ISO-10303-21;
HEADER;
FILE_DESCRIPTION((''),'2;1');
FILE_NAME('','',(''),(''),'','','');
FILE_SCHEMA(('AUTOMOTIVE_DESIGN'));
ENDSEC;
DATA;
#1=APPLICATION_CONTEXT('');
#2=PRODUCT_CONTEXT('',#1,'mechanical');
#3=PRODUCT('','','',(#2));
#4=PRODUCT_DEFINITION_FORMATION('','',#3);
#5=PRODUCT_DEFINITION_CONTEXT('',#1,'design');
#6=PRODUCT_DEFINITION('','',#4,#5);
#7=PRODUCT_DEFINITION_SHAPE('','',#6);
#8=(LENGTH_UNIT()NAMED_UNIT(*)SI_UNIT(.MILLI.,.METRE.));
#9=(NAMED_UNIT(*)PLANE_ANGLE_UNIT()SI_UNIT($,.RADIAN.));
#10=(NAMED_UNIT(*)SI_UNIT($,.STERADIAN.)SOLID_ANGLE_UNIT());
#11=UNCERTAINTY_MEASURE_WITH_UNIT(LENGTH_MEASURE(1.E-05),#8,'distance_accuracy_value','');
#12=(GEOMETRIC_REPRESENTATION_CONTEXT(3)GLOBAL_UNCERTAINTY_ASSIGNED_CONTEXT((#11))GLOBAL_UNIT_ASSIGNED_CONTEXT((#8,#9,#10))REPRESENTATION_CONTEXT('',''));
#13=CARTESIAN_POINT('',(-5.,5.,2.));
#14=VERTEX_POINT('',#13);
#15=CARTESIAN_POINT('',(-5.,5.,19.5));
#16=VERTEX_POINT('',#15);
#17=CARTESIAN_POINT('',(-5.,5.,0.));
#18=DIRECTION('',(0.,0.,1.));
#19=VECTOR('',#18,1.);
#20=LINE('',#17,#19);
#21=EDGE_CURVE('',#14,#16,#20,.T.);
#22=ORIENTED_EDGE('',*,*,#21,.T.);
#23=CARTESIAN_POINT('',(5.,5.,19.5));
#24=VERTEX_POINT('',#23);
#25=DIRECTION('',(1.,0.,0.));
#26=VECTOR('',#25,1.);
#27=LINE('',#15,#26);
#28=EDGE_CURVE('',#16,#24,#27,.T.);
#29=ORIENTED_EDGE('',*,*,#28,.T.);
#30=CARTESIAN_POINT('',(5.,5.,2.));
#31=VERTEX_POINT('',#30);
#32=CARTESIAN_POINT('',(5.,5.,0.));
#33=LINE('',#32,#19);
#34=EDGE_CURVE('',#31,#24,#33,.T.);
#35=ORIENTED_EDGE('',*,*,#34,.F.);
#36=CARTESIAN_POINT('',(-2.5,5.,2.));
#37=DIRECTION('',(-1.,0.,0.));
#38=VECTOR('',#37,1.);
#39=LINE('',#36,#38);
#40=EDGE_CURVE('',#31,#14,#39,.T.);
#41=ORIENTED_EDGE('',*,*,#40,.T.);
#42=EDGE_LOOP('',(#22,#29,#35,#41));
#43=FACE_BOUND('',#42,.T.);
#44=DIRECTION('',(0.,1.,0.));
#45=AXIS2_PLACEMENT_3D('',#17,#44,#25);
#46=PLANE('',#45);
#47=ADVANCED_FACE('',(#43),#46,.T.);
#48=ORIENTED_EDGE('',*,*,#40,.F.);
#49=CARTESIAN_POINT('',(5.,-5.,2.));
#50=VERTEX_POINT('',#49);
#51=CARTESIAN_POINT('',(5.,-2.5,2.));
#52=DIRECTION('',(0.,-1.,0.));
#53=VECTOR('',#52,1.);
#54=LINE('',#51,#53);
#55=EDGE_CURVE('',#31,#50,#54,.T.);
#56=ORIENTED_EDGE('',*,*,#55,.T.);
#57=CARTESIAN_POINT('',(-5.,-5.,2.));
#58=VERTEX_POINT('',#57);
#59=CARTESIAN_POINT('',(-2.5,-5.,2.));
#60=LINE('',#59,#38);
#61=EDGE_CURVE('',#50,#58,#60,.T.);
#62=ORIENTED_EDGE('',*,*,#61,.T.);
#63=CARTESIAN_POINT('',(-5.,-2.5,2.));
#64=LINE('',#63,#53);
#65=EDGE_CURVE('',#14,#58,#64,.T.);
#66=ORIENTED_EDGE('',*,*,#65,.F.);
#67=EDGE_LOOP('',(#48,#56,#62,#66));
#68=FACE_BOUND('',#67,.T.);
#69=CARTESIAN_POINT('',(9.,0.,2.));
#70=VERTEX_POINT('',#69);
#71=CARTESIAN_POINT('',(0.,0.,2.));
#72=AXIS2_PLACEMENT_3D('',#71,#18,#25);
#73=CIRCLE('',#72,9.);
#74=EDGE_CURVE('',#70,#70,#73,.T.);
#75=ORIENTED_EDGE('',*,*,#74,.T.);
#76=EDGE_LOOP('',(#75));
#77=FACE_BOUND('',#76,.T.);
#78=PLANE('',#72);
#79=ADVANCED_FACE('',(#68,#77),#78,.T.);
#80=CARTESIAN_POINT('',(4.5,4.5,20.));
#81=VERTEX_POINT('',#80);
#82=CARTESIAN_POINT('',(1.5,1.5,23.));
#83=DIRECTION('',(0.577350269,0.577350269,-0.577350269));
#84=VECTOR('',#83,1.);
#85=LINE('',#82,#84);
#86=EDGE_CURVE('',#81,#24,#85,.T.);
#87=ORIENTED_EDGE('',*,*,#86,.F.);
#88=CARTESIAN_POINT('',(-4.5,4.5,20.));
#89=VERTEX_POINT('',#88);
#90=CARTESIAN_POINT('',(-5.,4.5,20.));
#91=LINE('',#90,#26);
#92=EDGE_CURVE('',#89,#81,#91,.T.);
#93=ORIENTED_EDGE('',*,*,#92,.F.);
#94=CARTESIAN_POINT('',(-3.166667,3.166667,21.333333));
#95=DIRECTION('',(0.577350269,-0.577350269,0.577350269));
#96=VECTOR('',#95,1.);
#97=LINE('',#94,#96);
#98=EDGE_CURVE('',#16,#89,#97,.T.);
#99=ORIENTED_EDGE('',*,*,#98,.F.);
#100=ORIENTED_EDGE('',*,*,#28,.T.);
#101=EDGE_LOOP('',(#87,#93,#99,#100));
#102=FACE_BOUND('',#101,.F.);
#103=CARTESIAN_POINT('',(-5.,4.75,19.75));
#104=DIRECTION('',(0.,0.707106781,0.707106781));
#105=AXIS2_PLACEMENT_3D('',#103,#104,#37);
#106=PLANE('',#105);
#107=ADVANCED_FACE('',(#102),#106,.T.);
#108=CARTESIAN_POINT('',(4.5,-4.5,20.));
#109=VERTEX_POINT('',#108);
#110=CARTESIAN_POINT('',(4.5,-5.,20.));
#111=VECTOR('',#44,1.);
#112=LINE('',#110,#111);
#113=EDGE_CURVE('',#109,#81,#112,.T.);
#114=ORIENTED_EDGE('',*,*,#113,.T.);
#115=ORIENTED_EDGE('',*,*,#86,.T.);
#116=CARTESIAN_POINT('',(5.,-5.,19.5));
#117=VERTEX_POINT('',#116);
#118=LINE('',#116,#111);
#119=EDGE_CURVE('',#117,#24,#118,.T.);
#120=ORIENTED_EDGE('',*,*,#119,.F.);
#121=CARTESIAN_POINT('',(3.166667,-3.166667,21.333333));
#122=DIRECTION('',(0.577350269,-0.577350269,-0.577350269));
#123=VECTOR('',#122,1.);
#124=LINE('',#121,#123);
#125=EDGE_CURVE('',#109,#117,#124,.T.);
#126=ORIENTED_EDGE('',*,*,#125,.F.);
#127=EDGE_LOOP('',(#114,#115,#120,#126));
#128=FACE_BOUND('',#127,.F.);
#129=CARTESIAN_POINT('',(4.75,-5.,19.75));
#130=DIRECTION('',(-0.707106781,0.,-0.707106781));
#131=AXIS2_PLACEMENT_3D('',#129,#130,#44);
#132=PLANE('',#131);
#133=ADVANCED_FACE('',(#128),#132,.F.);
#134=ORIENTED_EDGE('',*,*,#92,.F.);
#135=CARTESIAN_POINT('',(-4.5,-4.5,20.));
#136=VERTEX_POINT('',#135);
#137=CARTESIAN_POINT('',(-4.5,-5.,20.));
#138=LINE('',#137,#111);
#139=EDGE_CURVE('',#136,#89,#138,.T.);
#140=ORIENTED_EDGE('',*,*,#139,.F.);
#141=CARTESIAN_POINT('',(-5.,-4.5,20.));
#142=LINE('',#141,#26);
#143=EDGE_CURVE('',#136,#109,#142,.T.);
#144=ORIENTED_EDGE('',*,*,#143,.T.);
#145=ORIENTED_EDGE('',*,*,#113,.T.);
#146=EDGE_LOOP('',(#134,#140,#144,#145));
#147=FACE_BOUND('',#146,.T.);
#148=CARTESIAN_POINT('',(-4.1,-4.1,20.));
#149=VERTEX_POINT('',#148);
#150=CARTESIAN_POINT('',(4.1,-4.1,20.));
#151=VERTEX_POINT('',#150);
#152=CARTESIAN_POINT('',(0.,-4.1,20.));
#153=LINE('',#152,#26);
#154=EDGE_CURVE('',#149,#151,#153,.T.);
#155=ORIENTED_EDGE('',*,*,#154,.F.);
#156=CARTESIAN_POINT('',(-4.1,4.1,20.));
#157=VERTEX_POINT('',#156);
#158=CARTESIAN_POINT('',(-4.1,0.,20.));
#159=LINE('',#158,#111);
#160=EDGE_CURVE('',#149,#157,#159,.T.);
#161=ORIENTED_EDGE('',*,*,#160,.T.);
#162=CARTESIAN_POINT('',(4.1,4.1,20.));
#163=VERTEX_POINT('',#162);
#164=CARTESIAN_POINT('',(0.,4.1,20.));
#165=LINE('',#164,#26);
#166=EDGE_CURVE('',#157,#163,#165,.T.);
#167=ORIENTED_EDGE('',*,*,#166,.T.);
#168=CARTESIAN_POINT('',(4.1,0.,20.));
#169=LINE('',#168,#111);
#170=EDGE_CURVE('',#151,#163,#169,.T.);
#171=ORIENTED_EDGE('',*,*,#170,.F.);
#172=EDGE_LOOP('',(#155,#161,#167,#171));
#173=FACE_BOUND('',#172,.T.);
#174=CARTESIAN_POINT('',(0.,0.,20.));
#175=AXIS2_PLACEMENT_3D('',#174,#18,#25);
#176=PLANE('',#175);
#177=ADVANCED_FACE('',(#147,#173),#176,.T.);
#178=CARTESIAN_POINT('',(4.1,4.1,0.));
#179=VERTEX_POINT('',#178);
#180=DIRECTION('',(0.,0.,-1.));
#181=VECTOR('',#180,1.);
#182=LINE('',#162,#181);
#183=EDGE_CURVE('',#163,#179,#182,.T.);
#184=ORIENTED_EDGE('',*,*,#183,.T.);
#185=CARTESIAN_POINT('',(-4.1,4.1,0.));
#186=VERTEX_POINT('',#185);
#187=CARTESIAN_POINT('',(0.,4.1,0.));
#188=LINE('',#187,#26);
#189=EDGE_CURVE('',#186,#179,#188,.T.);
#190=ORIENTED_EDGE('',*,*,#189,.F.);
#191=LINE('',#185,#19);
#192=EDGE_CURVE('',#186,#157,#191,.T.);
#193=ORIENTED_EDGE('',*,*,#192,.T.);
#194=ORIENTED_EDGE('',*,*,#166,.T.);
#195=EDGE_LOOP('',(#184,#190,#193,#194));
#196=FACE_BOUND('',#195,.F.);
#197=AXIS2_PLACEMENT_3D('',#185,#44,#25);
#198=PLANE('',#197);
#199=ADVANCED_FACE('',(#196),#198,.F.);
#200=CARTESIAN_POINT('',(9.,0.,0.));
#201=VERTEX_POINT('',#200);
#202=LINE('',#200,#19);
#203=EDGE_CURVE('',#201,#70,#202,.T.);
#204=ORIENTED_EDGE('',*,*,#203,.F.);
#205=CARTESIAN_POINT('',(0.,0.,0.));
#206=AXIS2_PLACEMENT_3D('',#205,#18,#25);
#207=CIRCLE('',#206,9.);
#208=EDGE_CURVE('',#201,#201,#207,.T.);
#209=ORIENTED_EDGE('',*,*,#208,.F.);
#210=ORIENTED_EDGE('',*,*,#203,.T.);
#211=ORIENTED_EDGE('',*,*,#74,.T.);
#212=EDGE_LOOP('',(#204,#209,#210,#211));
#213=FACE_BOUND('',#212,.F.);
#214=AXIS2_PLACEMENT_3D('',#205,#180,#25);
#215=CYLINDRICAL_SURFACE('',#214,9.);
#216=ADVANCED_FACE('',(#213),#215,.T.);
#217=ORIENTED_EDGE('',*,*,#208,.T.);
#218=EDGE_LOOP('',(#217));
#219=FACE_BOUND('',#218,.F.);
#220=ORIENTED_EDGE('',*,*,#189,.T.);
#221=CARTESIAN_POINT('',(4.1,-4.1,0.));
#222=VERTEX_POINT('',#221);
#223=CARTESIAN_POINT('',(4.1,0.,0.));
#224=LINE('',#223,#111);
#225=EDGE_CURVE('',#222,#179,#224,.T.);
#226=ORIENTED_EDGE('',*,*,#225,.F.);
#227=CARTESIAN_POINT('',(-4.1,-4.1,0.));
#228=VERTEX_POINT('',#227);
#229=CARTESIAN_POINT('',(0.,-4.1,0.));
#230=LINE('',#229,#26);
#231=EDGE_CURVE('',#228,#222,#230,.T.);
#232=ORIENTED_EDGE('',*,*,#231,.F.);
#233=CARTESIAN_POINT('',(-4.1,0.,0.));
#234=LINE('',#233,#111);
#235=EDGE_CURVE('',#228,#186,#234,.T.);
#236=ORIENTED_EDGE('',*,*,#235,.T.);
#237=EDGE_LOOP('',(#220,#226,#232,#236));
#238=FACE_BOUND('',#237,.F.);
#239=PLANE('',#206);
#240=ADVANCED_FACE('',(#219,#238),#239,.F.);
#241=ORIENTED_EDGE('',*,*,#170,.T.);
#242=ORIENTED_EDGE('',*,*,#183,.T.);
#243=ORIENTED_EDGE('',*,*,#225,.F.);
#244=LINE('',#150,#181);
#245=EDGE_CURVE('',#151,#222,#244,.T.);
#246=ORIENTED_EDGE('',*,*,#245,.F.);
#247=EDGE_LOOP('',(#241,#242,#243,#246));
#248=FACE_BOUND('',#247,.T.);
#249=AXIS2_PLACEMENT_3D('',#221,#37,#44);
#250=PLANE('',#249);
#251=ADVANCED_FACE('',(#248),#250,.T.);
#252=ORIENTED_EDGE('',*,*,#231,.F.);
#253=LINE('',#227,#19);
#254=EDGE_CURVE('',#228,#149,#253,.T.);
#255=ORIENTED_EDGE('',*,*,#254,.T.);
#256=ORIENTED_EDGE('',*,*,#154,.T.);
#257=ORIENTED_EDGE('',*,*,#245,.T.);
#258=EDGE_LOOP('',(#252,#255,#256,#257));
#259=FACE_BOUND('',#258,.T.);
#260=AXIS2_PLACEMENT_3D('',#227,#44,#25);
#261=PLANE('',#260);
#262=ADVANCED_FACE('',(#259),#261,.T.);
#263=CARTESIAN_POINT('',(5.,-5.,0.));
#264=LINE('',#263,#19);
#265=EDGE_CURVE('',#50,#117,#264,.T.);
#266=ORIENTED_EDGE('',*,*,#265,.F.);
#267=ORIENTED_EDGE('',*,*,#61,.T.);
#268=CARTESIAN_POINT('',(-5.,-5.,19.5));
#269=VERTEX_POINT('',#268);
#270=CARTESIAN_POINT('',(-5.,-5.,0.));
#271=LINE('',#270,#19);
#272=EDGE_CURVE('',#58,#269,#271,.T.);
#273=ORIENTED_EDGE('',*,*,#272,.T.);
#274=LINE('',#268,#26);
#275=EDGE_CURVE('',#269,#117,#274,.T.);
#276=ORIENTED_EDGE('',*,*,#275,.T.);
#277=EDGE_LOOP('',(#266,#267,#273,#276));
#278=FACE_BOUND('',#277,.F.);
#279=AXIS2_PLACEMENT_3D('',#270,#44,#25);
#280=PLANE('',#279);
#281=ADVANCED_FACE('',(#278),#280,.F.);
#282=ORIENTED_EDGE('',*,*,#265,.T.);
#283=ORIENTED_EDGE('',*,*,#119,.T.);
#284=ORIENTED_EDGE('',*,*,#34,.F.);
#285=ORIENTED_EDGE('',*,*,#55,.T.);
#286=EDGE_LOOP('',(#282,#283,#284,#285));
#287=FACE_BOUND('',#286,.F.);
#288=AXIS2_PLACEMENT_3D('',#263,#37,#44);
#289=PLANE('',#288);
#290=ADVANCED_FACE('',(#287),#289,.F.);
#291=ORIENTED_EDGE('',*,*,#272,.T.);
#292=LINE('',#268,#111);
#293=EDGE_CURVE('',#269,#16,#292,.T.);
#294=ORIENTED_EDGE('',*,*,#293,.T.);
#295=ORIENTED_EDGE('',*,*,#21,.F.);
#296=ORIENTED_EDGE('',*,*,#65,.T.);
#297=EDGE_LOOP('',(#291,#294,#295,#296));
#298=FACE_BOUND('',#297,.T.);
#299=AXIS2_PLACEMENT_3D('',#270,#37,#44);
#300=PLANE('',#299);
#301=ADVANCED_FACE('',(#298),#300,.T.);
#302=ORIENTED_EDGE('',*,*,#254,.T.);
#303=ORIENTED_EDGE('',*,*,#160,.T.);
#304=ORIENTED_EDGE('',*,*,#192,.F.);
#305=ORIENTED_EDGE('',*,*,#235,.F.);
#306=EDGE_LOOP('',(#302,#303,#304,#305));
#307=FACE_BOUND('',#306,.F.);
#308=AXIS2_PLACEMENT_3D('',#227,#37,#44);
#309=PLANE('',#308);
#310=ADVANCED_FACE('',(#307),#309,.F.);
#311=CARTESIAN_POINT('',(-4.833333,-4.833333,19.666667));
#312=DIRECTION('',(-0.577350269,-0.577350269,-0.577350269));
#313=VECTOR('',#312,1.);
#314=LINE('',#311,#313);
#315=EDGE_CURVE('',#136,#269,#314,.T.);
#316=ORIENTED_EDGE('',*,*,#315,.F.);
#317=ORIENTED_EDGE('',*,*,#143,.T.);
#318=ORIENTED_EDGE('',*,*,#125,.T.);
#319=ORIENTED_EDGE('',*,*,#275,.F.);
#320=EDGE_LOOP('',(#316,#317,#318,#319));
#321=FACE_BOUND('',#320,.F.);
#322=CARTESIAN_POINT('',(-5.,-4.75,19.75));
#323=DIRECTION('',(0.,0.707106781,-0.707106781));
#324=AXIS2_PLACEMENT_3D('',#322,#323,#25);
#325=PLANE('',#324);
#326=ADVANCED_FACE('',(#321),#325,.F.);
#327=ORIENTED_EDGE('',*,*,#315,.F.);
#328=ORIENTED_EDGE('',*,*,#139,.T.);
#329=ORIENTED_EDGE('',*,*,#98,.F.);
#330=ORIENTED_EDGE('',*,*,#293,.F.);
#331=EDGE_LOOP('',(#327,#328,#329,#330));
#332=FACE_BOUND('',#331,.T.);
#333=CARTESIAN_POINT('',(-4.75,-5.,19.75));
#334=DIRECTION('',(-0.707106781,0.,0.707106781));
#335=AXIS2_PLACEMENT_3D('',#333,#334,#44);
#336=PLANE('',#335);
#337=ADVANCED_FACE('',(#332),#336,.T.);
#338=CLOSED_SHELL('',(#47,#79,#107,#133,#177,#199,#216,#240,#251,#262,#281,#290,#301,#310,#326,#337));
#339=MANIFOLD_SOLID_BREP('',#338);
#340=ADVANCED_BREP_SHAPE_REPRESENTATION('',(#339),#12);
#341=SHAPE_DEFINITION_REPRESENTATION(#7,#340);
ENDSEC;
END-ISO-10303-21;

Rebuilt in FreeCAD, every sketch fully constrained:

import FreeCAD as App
import Part
import Sketcher

V = App.Vector


def edges_at(feature, points):
    """Names of the edges that pass closest to the given points."""
    edges = feature.Shape.Edges
    near = lambda p: min(range(len(edges)), key=lambda i: edges[i].distToShape(Part.Vertex(*p))[0])
    return sorted({f"Edge{near(p) + 1}" for p in points})


def add_polygon(sketch, points):
    """Adds a closed chain of lines whose ends are joined by coincident constraints."""
    first, n = sketch.GeometryCount, len(points)
    for a, b in zip(points, points[1:] + points[:1]):
        sketch.addGeometry(Part.LineSegment(App.Vector(*a, 0), App.Vector(*b, 0)), False)
    for i in range(n):
        sketch.addConstraint(Sketcher.Constraint("Coincident", first + i, 2, first + (i + 1) % n, 1))

doc = App.newDocument("Part")
params = doc.addObject("Spreadsheet::Sheet", "Params")
for row, (alias, value) in enumerate([
    ("sketch1_diameter", "18 mm"),
    ("sketch1_width", "8.2 mm"),
    ("pad1_length", "2 mm"),
    ("sketch2_width", "10 mm"),
    ("sketch2_width2", "8.2 mm"),
    ("pad2_length", "20 mm"),
    ("chamfer_size", "0.5 mm"),
], start=1):
    params.set(f"A{row}", alias)
    params.set(f"B{row}", "=" + value)
    params.setAlias(f"B{row}", alias)

body = doc.addObject("PartDesign::Body", "Body")

# Sketch on XY plane
sketch1 = body.newObject("Sketcher::SketchObject", "Sketch")
sketch1.AttachmentSupport = (doc.getObject("XY_Plane"), [""])
sketch1.MapMode = "FlatFace"
sketch1.addGeometry(Part.Circle(V(0, 0, 0), V(0, 0, 1), 9), False)  # 0
add_polygon(sketch1, [(4, -4), (-4, -4), (-4, 4), (4, 4)])  # lines 1-4
sketch1.addConstraint(Sketcher.Constraint("Horizontal", 1))
sketch1.addConstraint(Sketcher.Constraint("Vertical", 2))
sketch1.addConstraint(Sketcher.Constraint("Horizontal", 3))
sketch1.addConstraint(Sketcher.Constraint("Vertical", 4))
sketch1.addConstraint(Sketcher.Constraint("Coincident", 0, 3, -1, 1))
sketch1.addConstraint(Sketcher.Constraint("Symmetric", 1, 2, 3, 2, -1, 1))
sketch1.addConstraint(Sketcher.Constraint("Equal", 3, 2))
sketch1.addConstraint(Sketcher.Constraint("Diameter", 0, 18.0))
sketch1.addConstraint(Sketcher.Constraint("DistanceX", 1, 2, 1, 1, 8.2))
sketch1.setExpression("Constraints[11]", "Params.sketch1_diameter")
sketch1.setExpression("Constraints[12]", "Params.sketch1_width")
pad1 = body.newObject("PartDesign::Pad", "Pad")
pad1.Profile = sketch1
pad1.setExpression("Length", "Params.pad1_length")

# Sketch on XY plane
sketch2 = body.newObject("Sketcher::SketchObject", "Sketch001")
sketch2.AttachmentSupport = (doc.getObject("XY_Plane"), [""])
sketch2.MapMode = "FlatFace"
add_polygon(sketch2, [(-5, 5), (-5, -5), (5, -5), (5, 5)])  # lines 0-3
add_polygon(sketch2, [(4, -4), (-4, -4), (-4, 4), (4, 4)])  # lines 4-7
sketch2.addConstraint(Sketcher.Constraint("Vertical", 0))
sketch2.addConstraint(Sketcher.Constraint("Horizontal", 1))
sketch2.addConstraint(Sketcher.Constraint("Vertical", 2))
sketch2.addConstraint(Sketcher.Constraint("Horizontal", 3))
sketch2.addConstraint(Sketcher.Constraint("Horizontal", 4))
sketch2.addConstraint(Sketcher.Constraint("Vertical", 5))
sketch2.addConstraint(Sketcher.Constraint("Horizontal", 6))
sketch2.addConstraint(Sketcher.Constraint("Vertical", 7))
sketch2.addConstraint(Sketcher.Constraint("Symmetric", 0, 2, 2, 2, -1, 1))
sketch2.addConstraint(Sketcher.Constraint("Symmetric", 4, 2, 6, 2, -1, 1))
sketch2.addConstraint(Sketcher.Constraint("Equal", 3, 0))
sketch2.addConstraint(Sketcher.Constraint("Equal", 6, 5))
sketch2.addConstraint(Sketcher.Constraint("DistanceX", 1, 1, 1, 2, 10.0))
sketch2.addConstraint(Sketcher.Constraint("DistanceX", 4, 2, 4, 1, 8.2))
sketch2.setExpression("Constraints[20]", "Params.sketch2_width")
sketch2.setExpression("Constraints[21]", "Params.sketch2_width2")
pad2 = body.newObject("PartDesign::Pad", "Pad001")
pad2.Profile = sketch2
pad2.setExpression("Length", "Params.pad2_length")
doc.recompute()

chamfer = body.newObject("PartDesign::Chamfer", "Chamfer")
chamfer.Base = (pad2, edges_at(pad2, [
    (0, -5, 20),
    (5, 0, 20),
    (0, 5, 20),
    (-5, 0, 20),
]))
chamfer.setExpression("Size", "Params.chamfer_size")

doc.recompute()
